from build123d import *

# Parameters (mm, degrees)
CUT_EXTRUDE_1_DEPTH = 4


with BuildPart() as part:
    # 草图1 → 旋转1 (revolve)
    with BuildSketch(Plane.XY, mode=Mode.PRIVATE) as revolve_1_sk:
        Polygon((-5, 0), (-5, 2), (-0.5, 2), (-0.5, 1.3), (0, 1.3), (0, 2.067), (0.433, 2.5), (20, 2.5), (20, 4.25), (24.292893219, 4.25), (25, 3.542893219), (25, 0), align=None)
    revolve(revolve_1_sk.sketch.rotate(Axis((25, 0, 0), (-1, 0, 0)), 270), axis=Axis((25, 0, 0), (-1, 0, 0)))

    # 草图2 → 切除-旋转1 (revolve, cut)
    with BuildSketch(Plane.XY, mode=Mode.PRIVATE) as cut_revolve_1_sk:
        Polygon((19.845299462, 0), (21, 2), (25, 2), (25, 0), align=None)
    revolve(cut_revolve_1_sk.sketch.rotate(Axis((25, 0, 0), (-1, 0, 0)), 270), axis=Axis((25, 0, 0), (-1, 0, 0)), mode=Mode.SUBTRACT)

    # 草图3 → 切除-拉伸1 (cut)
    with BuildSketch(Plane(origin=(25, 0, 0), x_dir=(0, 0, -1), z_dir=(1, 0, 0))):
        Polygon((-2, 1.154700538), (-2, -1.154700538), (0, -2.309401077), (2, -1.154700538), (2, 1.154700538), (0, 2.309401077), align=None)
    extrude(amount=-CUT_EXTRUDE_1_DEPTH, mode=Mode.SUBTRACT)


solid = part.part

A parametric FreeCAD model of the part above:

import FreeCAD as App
import Part
import Sketcher
Q = App.Units.Quantity


def add_polygon(sketch, points):
    """Adds a closed chain of lines whose ends are joined by coincident constraints."""
    first, n = sketch.GeometryCount, len(points)
    for a, b in zip(points, points[1:] + points[:1]):
        sketch.addGeometry(Part.LineSegment(App.Vector(*a, 0), App.Vector(*b, 0)), False)
    for i in range(n):
        sketch.addConstraint(Sketcher.Constraint("Coincident", first + i, 2, first + (i + 1) % n, 1))

doc = App.newDocument("Part")
params = doc.addObject("Spreadsheet::Sheet", "Params")
for row, (alias, value) in enumerate([
    ("sketch1_width", "30 mm"),
    ("sketch1_height", "2 mm"),
    ("sketch1_length", "1 mm"),
    ("sketch1_width2", "0.5 mm"),
    ("sketch1_width3", "4.5 mm"),
    ("revolution_angle", "360 deg"),
    ("sketch2_width", "4 mm"),
    ("sketch2_height", "2 mm"),
    ("groove_angle", "360 deg"),
    ("pocket1_length", "4 mm"),
], start=1):
    params.set(f"A{row}", alias)
    params.set(f"B{row}", "=" + value)
    params.setAlias(f"B{row}", alias)

body = doc.addObject("PartDesign::Body", "Body")

# Sketch on XY plane
sketch1 = body.newObject("Sketcher::SketchObject", "Sketch")
sketch1.AttachmentSupport = (doc.getObject("XY_Plane"), [""])
sketch1.MapMode = "FlatFace"
add_polygon(sketch1, [(-5, 2), (-5, 0), (25, 0), (25, 3.542893), (24.292893, 4.25), (20, 4.25), (20, 2.5), (0.433, 2.5), (0, 2.067), (0, 1.3), (-0.5, 1.3), (-0.5, 2)])  # lines 0-11
sketch1.addConstraint([
    Sketcher.Constraint("Vertical", 0),
    Sketcher.Constraint("Horizontal", 1),
    Sketcher.Constraint("Vertical", 2),
    Sketcher.Constraint("Horizontal", 4),
    Sketcher.Constraint("Vertical", 5),
    Sketcher.Constraint("Horizontal", 6),
    Sketcher.Constraint("Vertical", 8),
    Sketcher.Constraint("Horizontal", 9),
    Sketcher.Constraint("Vertical", 10),
    Sketcher.Constraint("Horizontal", 11),
    Sketcher.Constraint("PointOnObject", 0, 2, -1),
    Sketcher.Constraint("PointOnObject", 7, 2, -2),
    Sketcher.Constraint("Perpendicular", 3, 7),
    Sketcher.Constraint("DistanceX", 1, 1, 1, 2, Q("30 mm")),
    Sketcher.Constraint("DistanceY", 0, 2, 0, 1, Q("2 mm")),
    Sketcher.Constraint("Angle", 3, Q("135 deg")),
    Sketcher.Constraint("Distance", 3, Q("1 mm")),
    Sketcher.Constraint("DistanceX", 9, 2, 9, 1, Q("0.5 mm")),
    Sketcher.Constraint("DistanceX", 11, 2, 11, 1, Q("4.5 mm")),
    Sketcher.Constraint("DistanceY", 10, 1, 10, 2, Q("0.7 mm")),
    Sketcher.Constraint("DistanceX", -1, 1, 4, 2, Q("20 mm")),
    Sketcher.Constraint("DistanceY", 5, 2, 5, 1, Q("1.75 mm")),
    Sketcher.Constraint("DistanceY", -1, 1, 5, 2, Q("2.5 mm")),
    Sketcher.Constraint("DistanceX", 6, 2, 6, 1, Q("19.567 mm")),
])
sketch1.setExpression("Constraints[25]", "Params.sketch1_width")
sketch1.setExpression("Constraints[26]", "Params.sketch1_height")
sketch1.setExpression("Constraints[28]", "Params.sketch1_length")
sketch1.setExpression("Constraints[29]", "Params.sketch1_width2")
sketch1.setExpression("Constraints[30]", "Params.sketch1_width3")
revolution = body.newObject("PartDesign::Revolution", "Revolution")
revolution.Profile = sketch1
revolution.ReferenceAxis = (sketch1, ["H_Axis"])
revolution.setExpression("Angle", "Params.revolution_angle")

# Sketch on XY plane
sketch2 = body.newObject("Sketcher::SketchObject", "Sketch001")
sketch2.AttachmentSupport = (doc.getObject("XY_Plane"), [""])
sketch2.MapMode = "FlatFace"
add_polygon(sketch2, [(21, 2), (19.845299, 0), (25, 0), (25, 2)])  # lines 0-3
sketch2.addConstraint([
    Sketcher.Constraint("Horizontal", 1),
    Sketcher.Constraint("Vertical", 2),
    Sketcher.Constraint("Horizontal", 3),
    Sketcher.Constraint("PointOnObject", 0, 2, -1),
    Sketcher.Constraint("DistanceX", 3, 2, 3, 1, Q("4 mm")),
    Sketcher.Constraint("DistanceY", 2, 1, 2, 2, Q("2 mm")),
    Sketcher.Constraint("Angle", 0, Q("-120 deg")),
    Sketcher.Constraint("DistanceX", -1, 1, 1, 2, Q("25 mm")),
])
sketch2.setExpression("Constraints[8]", "Params.sketch2_width")
sketch2.setExpression("Constraints[9]", "Params.sketch2_height")
groove = body.newObject("PartDesign::Groove", "Groove")
groove.Profile = sketch2
groove.ReferenceAxis = (sketch2, ["H_Axis"])
groove.setExpression("Angle", "Params.groove_angle")

# Sketch on YZ plane
sketch3 = body.newObject("Sketcher::SketchObject", "Sketch002")
sketch3.AttachmentSupport = (doc.getObject("YZ_Plane"), [""])
sketch3.MapMode = "FlatFace"
sketch3.AttachmentOffset = App.Placement(App.Vector(0, 0, 25), App.Rotation())
add_polygon(sketch3, [(1.154701, 2), (-1.154701, 2), (-2.309401, 0), (-1.154701, -2), (1.154701, -2), (2.309401, 0)])  # lines 0-5
sketch3.addConstraint([
    Sketcher.Constraint("Horizontal", 0),
    Sketcher.Constraint("Horizontal", 3),
    Sketcher.Constraint("Symmetric", 0, 2, 3, 2, -1, 1),
    Sketcher.Constraint("Symmetric", 1, 2, 4, 2, -1, 1),
    Sketcher.Constraint("PointOnObject", 1, 2, -1),
    Sketcher.Constraint("Parallel", 2, 5),
    Sketcher.Constraint("Vertical", 0, 2, 2, 2),
    Sketcher.Constraint("Angle", 1, Q("-120 deg")),
    Sketcher.Constraint("DistanceY", -1, 1, 0, 2, Q("2 mm")),
    Sketcher.Constraint("DistanceX", 0, 2, 0, 1, Q("2.309401 mm")),
])
pocket1 = body.newObject("PartDesign::Pocket", "Pocket")
pocket1.Profile = sketch3
pocket1.setExpression("Length", "Params.pocket1_length")

doc.recompute()
